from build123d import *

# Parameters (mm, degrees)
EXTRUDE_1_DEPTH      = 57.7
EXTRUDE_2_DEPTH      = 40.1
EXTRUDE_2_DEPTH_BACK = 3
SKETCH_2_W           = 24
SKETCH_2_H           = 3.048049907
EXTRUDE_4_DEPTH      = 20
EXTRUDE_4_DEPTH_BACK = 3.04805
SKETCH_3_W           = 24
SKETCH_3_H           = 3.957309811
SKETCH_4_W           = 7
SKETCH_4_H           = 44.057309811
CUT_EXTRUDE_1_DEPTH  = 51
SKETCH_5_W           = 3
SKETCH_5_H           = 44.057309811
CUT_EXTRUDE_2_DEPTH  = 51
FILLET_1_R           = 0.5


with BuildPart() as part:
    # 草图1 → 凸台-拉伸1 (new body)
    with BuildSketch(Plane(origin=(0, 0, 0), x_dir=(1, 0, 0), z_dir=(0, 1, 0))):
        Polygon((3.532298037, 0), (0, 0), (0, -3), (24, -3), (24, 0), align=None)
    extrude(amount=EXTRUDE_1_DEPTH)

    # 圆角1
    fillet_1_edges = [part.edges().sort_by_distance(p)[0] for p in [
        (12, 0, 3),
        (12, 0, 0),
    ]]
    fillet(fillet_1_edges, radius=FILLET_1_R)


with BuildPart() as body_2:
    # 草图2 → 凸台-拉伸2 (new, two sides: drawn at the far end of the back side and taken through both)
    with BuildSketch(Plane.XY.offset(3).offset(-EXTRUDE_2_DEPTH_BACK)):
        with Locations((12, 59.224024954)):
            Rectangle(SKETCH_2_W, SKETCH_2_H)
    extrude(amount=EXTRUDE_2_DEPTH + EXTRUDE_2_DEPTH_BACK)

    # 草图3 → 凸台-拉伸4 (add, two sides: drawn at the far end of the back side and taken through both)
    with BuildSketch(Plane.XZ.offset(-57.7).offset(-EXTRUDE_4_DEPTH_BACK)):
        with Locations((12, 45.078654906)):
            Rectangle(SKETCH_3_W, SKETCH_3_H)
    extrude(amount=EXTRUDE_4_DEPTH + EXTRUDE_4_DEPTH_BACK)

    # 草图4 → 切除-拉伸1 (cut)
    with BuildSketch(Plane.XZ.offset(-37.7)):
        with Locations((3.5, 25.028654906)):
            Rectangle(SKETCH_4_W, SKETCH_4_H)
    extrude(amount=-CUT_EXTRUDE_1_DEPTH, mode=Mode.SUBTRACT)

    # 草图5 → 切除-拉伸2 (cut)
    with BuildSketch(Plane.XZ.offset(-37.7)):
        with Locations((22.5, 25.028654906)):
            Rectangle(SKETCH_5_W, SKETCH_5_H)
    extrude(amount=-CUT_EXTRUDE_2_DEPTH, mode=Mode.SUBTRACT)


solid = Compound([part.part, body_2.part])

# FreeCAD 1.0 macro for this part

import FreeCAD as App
import Part
import Sketcher


def edges_at(feature, points):
    """Names of the edges that pass closest to the given points."""
    edges = feature.Shape.Edges
    near = lambda p: min(range(len(edges)), key=lambda i: edges[i].distToShape(Part.Vertex(*p))[0])
    return sorted({f"Edge{near(p) + 1}" for p in points})


def add_polygon(sketch, points):
    """Adds a closed chain of lines whose ends are joined by coincident constraints."""
    first, n = sketch.GeometryCount, len(points)
    for a, b in zip(points, points[1:] + points[:1]):
        sketch.addGeometry(Part.LineSegment(App.Vector(*a, 0), App.Vector(*b, 0)), False)
    for i in range(n):
        sketch.addConstraint(Sketcher.Constraint("Coincident", first + i, 2, first + (i + 1) % n, 1))

doc = App.newDocument("Part")
body = doc.addObject("PartDesign::Body", "Body")

sketch1 = doc.addObject("Sketcher::SketchObject", "Sketch")
body.addObject(sketch1)
sketch1.AttachmentSupport = (doc.XZ_Plane, [""])
sketch1.MapMode = "FlatFace"
add_polygon(sketch1, [(0, 0), (0, 3), (24, 3), (24, 0)])
sketch1.addConstraint([
    Sketcher.Constraint("Vertical", 0),
    Sketcher.Constraint("Horizontal", 1),
    Sketcher.Constraint("Vertical", 2),
    Sketcher.Constraint("Horizontal", 3),
    Sketcher.Constraint("Coincident", 3, 2, -1, 1),
    Sketcher.Constraint("DistanceX", 1, 1, 1, 2, 24.0),
    Sketcher.Constraint("DistanceY", 0, 1, 0, 2, 3.0),
])
pad1 = doc.addObject("PartDesign::Pad", "Pad")
body.addObject(pad1)
pad1.Profile = sketch1
pad1.Length = 57.7
pad1.Reversed = True
doc.recompute()

fillet = doc.addObject("PartDesign::Fillet", "Fillet")
body.addObject(fillet)
fillet.Base = (pad1, edges_at(pad1, [(12, 0, 3), (12, 0, 0)]))
fillet.Radius = 0.5
body2 = doc.addObject("PartDesign::Body", "Body001")

sketch2 = doc.addObject("Sketcher::SketchObject", "Sketch001")
body2.addObject(sketch2)
sketch2.AttachmentSupport = (doc.getObject("XY_Plane001"), [""])
sketch2.MapMode = "FlatFace"
sketch2.AttachmentOffset = App.Placement(App.Vector(0, 0, 3), App.Rotation())
add_polygon(sketch2, [(0, 60.74805), (0, 57.7), (24, 57.7), (24, 60.74805)])
sketch2.addConstraint([
    Sketcher.Constraint("Vertical", 0),
    Sketcher.Constraint("Horizontal", 1),
    Sketcher.Constraint("Vertical", 2),
    Sketcher.Constraint("Horizontal", 3),
    Sketcher.Constraint("PointOnObject", 0, 2, -2),
    Sketcher.Constraint("DistanceX", 1, 1, 1, 2, 24.0),
    Sketcher.Constraint("DistanceY", -1, 1, 0, 2, 57.7),
    Sketcher.Constraint("DistanceY", 0, 2, 0, 1, 3.04805),
])
pad2 = doc.addObject("PartDesign::Pad", "Pad001")
body2.addObject(pad2)
pad2.Profile = sketch2
pad2.Type = "TwoLengths"
pad2.Length = 40.1
pad2.Length2 = 3

sketch3 = doc.addObject("Sketcher::SketchObject", "Sketch002")
body2.addObject(sketch3)
sketch3.AttachmentSupport = (doc.getObject("XZ_Plane001"), [""])
sketch3.MapMode = "FlatFace"
sketch3.AttachmentOffset = App.Placement(App.Vector(0, 0, -57.7), App.Rotation())
add_polygon(sketch3, [(0, 47.05731), (0, 43.1), (24, 43.1), (24, 47.05731)])
sketch3.addConstraint([
    Sketcher.Constraint("Vertical", 0),
    Sketcher.Constraint("Horizontal", 1),
    Sketcher.Constraint("Vertical", 2),
    Sketcher.Constraint("Horizontal", 3),
    Sketcher.Constraint("PointOnObject", 0, 2, -2),
    Sketcher.Constraint("DistanceX", 1, 1, 1, 2, 24.0),
    Sketcher.Constraint("DistanceY", -1, 1, 0, 2, 43.1),
    Sketcher.Constraint("DistanceY", 0, 2, 0, 1, 3.95731),
])
pad3 = doc.addObject("PartDesign::Pad", "Pad002")
body2.addObject(pad3)
pad3.Profile = sketch3
pad3.Type = "TwoLengths"
pad3.Length = 20
pad3.Length2 = 3.04805

sketch4 = doc.addObject("Sketcher::SketchObject", "Sketch003")
body2.addObject(sketch4)
sketch4.AttachmentSupport = (doc.getObject("XZ_Plane001"), [""])
sketch4.MapMode = "FlatFace"
sketch4.AttachmentOffset = App.Placement(App.Vector(0, 0, -37.7), App.Rotation())
add_polygon(sketch4, [(0, 47.05731), (0, 3), (7, 3), (7, 47.05731)])
sketch4.addConstraint([
    Sketcher.Constraint("Vertical", 0),
    Sketcher.Constraint("Horizontal", 1),
    Sketcher.Constraint("Vertical", 2),
    Sketcher.Constraint("Horizontal", 3),
    Sketcher.Constraint("PointOnObject", 0, 2, -2),
    Sketcher.Constraint("DistanceX", 1, 1, 1, 2, 7.0),
    Sketcher.Constraint("DistanceY", -1, 1, 0, 2, 3.0),
    Sketcher.Constraint("DistanceY", 0, 2, 0, 1, 44.05731),
])
pocket1 = doc.addObject("PartDesign::Pocket", "Pocket")
body2.addObject(pocket1)
pocket1.Profile = sketch4
pocket1.Length = 51

sketch5 = doc.addObject("Sketcher::SketchObject", "Sketch004")
body2.addObject(sketch5)
sketch5.AttachmentSupport = (doc.getObject("XZ_Plane001"), [""])
sketch5.MapMode = "FlatFace"
sketch5.AttachmentOffset = App.Placement(App.Vector(0, 0, -37.7), App.Rotation())
add_polygon(sketch5, [(21, 47.05731), (21, 3), (24, 3), (24, 47.05731)])
sketch5.addConstraint([
    Sketcher.Constraint("Vertical", 0),
    Sketcher.Constraint("Horizontal", 1),
    Sketcher.Constraint("Vertical", 2),
    Sketcher.Constraint("Horizontal", 3),
    Sketcher.Constraint("DistanceX", 1, 1, 1, 2, 3.0),
    Sketcher.Constraint("DistanceX", -1, 1, 0, 2, 21.0),
    Sketcher.Constraint("DistanceY", -1, 1, 0, 2, 3.0),
    Sketcher.Constraint("DistanceY", 0, 2, 0, 1, 44.05731),
])
pocket2 = doc.addObject("PartDesign::Pocket", "Pocket001")
body2.addObject(pocket2)
pocket2.Profile = sketch5
pocket2.Length = 51

doc.recompute()
